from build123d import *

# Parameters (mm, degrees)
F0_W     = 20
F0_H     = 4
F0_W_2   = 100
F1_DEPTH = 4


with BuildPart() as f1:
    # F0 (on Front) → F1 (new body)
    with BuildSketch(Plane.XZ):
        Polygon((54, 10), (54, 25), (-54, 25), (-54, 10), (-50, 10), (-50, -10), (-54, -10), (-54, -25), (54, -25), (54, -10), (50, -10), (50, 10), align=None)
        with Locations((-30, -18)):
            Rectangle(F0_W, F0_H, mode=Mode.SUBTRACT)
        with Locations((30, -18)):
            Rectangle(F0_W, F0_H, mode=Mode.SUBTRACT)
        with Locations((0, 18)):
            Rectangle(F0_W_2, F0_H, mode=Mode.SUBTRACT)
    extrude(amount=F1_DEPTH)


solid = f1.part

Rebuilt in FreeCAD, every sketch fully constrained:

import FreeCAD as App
import Part
import Sketcher
from FreeCAD import Vector


def add_polygon(sketch, points):
    """Adds a closed chain of lines whose ends are joined by coincident constraints."""
    first, n = sketch.GeometryCount, len(points)
    for a, b in zip(points, points[1:] + points[:1]):
        sketch.addGeometry(Part.LineSegment(App.Vector(*a, 0), App.Vector(*b, 0)), False)
    for i in range(n):
        sketch.addConstraint(Sketcher.Constraint("Coincident", first + i, 2, first + (i + 1) % n, 1))

doc = App.newDocument("Part")
params = doc.addObject("Spreadsheet::Sheet", "Params")
for row, (alias, value) in enumerate([
    ("sketch1_width", "108 mm"),
    ("sketch1_width2", "4 mm"),
    ("sketch1_width3", "20 mm"),
    ("sketch1_height", "15 mm"),
    ("pad1_length", "4 mm"),
], start=1):
    params.set(f"A{row}", alias)
    params.set(f"B{row}", "=" + value)
    params.setAlias(f"B{row}", alias)

body = doc.addObject("PartDesign::Body", "Body")

# Sketch on XZ plane
sketch1 = body.newObject("Sketcher::SketchObject", "Sketch")
sketch1.AttachmentSupport = (doc.getObject("XZ_Plane"), [""])
sketch1.MapMode = "FlatFace"
add_polygon(sketch1, [(54, 10), (54, 25), (-54, 25), (-54, 10), (-50, 10), (-50, -10), (-54, -10), (-54, -25), (54, -25), (54, -10), (50, -10), (50, 10)])  # lines 0-11
add_polygon(sketch1, [(-20, -20), (-40, -20), (-40, -16), (-20, -16)])  # lines 12-15
add_polygon(sketch1, [(40, -20), (20, -20), (20, -16), (40, -16)])  # lines 16-19
add_polygon(sketch1, [(50, 16), (-50, 16), (-50, 20), (50, 20)])  # lines 20-23
sketch1.addConstraint(Sketcher.Constraint("Vertical", 0))
sketch1.addConstraint(Sketcher.Constraint("Horizontal", 1))
sketch1.addConstraint(Sketcher.Constraint("Vertical", 2))
sketch1.addConstraint(Sketcher.Constraint("Horizontal", 3))
sketch1.addConstraint(Sketcher.Constraint("Vertical", 4))
sketch1.addConstraint(Sketcher.Constraint("Horizontal", 5))
sketch1.addConstraint(Sketcher.Constraint("Vertical", 6))
sketch1.addConstraint(Sketcher.Constraint("Horizontal", 7))
sketch1.addConstraint(Sketcher.Constraint("Vertical", 8))
sketch1.addConstraint(Sketcher.Constraint("Horizontal", 9))
sketch1.addConstraint(Sketcher.Constraint("Vertical", 10))
sketch1.addConstraint(Sketcher.Constraint("Horizontal", 11))
sketch1.addConstraint(Sketcher.Constraint("Horizontal", 12))
sketch1.addConstraint(Sketcher.Constraint("Vertical", 13))
sketch1.addConstraint(Sketcher.Constraint("Horizontal", 14))
sketch1.addConstraint(Sketcher.Constraint("Vertical", 15))
sketch1.addConstraint(Sketcher.Constraint("Horizontal", 16))
sketch1.addConstraint(Sketcher.Constraint("Vertical", 17))
sketch1.addConstraint(Sketcher.Constraint("Horizontal", 18))
sketch1.addConstraint(Sketcher.Constraint("Vertical", 19))
sketch1.addConstraint(Sketcher.Constraint("Horizontal", 20))
sketch1.addConstraint(Sketcher.Constraint("Vertical", 21))
sketch1.addConstraint(Sketcher.Constraint("Horizontal", 22))
sketch1.addConstraint(Sketcher.Constraint("Vertical", 23))
sketch1.addConstraint(Sketcher.Constraint("Symmetric", 0, 2, 6, 2, -1, 1))
sketch1.addConstraint(Sketcher.Constraint("Symmetric", 2, 2, 8, 2, -1, 1))
sketch1.addConstraint(Sketcher.Constraint("Symmetric", 4, 2, 10, 2, -1, 1))
sketch1.addConstraint(Sketcher.Constraint("Symmetric", 5, 2, 8, 2, -2))
sketch1.addConstraint(Sketcher.Constraint("Symmetric", 15, 2, 16, 2, -2))
sketch1.addConstraint(Sketcher.Constraint("Symmetric", 13, 2, 18, 2, -2))
sketch1.addConstraint(Sketcher.Constraint("Vertical", 4, 2, 20, 2))
sketch1.addConstraint(Sketcher.Constraint("Vertical", 10, 2, 22, 2))
sketch1.addConstraint(Sketcher.Constraint("Equal", 18, 4))
sketch1.addConstraint(Sketcher.Constraint("Equal", 11, 13))
sketch1.addConstraint(Sketcher.Constraint("Equal", 19, 21))
sketch1.addConstraint(Sketcher.Constraint("DistanceX", 1, 2, 1, 1, 108.0))
sketch1.addConstraint(Sketcher.Constraint("DistanceX", 3, 1, 3, 2, 4.0))
sketch1.addConstraint(Sketcher.Constraint("DistanceX", 12, 2, 12, 1, 20.0))
sketch1.addConstraint(Sketcher.Constraint("DistanceY", 0, 1, 0, 2, 15.0))
sketch1.addConstraint(Sketcher.Constraint("DistanceX", 12, 2, -1, 1, 40.0))
sketch1.addConstraint(Sketcher.Constraint("DistanceY", 12, 2, -1, 1, 20.0))
sketch1.addConstraint(Sketcher.Constraint("DistanceY", -1, 1, 20, 2, 16.0))
sketch1.setExpression("Constraints[59]", "Params.sketch1_width")
sketch1.setExpression("Constraints[60]", "Params.sketch1_width2")
sketch1.setExpression("Constraints[61]", "Params.sketch1_width3")
sketch1.setExpression("Constraints[62]", "Params.sketch1_height")
pad1 = body.newObject("PartDesign::Pad", "Pad")
pad1.Profile = sketch1
pad1.setExpression("Length", "Params.pad1_length")

doc.recompute()
